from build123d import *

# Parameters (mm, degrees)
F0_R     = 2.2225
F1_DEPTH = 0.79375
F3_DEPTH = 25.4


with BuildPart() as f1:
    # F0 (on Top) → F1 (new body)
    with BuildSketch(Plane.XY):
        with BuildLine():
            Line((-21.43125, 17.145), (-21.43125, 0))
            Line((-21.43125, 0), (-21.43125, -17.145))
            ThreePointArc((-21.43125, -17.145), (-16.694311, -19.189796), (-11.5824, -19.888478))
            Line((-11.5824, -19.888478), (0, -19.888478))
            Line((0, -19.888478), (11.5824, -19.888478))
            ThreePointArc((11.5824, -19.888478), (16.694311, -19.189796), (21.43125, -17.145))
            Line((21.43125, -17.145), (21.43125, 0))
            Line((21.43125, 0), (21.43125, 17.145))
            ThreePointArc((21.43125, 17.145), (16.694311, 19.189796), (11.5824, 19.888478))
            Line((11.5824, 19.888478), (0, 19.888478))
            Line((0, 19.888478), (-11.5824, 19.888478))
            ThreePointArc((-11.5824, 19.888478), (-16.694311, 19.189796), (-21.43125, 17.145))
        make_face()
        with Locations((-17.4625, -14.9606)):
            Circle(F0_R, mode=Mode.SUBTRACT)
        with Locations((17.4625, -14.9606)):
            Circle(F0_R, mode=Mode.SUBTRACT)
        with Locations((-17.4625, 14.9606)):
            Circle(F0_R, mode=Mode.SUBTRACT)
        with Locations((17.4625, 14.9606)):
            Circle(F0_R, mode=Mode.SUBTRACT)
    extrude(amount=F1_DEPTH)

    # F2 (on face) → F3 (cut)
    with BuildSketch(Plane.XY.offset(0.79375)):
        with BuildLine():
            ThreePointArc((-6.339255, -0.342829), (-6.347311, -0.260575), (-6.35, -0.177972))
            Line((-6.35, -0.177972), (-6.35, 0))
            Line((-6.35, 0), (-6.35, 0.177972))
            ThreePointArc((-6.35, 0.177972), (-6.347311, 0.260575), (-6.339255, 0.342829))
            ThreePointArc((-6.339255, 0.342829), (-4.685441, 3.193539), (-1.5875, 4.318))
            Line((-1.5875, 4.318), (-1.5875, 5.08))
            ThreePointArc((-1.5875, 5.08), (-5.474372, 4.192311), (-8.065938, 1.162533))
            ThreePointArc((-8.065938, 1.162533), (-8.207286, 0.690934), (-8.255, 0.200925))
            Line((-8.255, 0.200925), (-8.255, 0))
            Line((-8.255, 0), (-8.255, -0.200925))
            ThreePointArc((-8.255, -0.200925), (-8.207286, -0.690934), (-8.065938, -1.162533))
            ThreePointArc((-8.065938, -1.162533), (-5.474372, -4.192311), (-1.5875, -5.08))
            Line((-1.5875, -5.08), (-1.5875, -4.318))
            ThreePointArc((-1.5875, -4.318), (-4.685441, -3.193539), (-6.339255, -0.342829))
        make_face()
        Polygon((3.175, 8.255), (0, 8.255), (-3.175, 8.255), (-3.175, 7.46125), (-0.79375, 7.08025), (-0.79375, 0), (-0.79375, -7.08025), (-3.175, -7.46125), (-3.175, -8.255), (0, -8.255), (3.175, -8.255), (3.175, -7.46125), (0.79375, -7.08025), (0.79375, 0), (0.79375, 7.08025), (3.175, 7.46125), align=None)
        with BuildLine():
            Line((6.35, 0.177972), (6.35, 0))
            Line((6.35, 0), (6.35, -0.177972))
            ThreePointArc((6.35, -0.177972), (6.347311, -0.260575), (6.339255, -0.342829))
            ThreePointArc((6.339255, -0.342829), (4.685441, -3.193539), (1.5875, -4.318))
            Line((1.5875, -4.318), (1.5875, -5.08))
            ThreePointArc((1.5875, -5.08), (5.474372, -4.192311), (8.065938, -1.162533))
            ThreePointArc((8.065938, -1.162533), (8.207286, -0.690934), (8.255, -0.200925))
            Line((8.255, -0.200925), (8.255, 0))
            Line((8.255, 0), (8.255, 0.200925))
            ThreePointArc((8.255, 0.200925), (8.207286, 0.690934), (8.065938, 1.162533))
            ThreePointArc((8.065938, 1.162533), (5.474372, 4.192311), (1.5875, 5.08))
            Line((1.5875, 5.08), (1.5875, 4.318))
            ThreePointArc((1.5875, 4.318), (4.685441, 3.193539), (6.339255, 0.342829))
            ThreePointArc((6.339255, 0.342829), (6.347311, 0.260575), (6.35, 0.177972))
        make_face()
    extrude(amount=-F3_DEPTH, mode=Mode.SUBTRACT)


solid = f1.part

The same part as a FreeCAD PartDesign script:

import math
import FreeCAD as App
import Part
import Sketcher
from FreeCAD import Vector
Q = App.Units.Quantity

doc = App.newDocument("Part")
params = doc.addObject("Spreadsheet::Sheet", "Params")
for row, (alias, value) in enumerate([
    ("sketch1_radius", "0.7499999 in"),
    ("sketch1_diameter", "0.175 in"),
    ("sketch1_height", "1.35 in"),
    ("sketch1_width", "0.912 in"),
    ("pad1_length", "0.03125 in"),
    ("sketch2_radius", "0.19 in"),
    ("sketch2_radius2", "0.25 in"),
    ("sketch2_width", "0.25 in"),
    ("sketch2_height", "0.03 in"),
    ("sketch2_height2", "0.03125 in"),
    ("pocket1_length", "1 in"),
], start=1):
    params.set(f"A{row}", alias)
    params.set(f"B{row}", "=" + value)
    params.setAlias(f"B{row}", alias)

body = doc.addObject("PartDesign::Body", "Body")

# Sketch on XY plane
sketch1 = doc.addObject("Sketcher::SketchObject", "Sketch")
body.addObject(sketch1)
sketch1.AttachmentSupport = (doc.XY_Plane, [""])
sketch1.MapMode = "FlatFace"
sketch1.addGeometry([
    Part.LineSegment(Vector(-21.4, 17.1, 0), Vector(-21.4, -17.1, 0)),  # 0
    Part.ArcOfCircle(Part.Circle(Vector(-11.6, -0.8, 0), Vector(0, 0, 1), 19), math.radians(-121), math.radians(-90)),  # 1
    Part.LineSegment(Vector(-11.6, -19.9, 0), Vector(11.6, -19.9, 0)),  # 2
    Part.ArcOfCircle(Part.Circle(Vector(11.6, -0.8, 0), Vector(0, 0, 1), 19), math.radians(-90), math.radians(-59)),  # 3
    Part.LineSegment(Vector(21.4, -17.1, 0), Vector(21.4, 17.1, 0)),  # 4
    Part.ArcOfCircle(Part.Circle(Vector(11.6, 0.8, 0), Vector(0, 0, 1), 19), math.radians(59), math.radians(90)),  # 5
    Part.LineSegment(Vector(11.6, 19.9, 0), Vector(-11.6, 19.9, 0)),  # 6
    Part.ArcOfCircle(Part.Circle(Vector(-11.6, 0.8, 0), Vector(0, 0, 1), 19), math.radians(90), math.radians(121)),  # 7
    Part.Circle(Vector(-17.5, -15, 0), Vector(0, 0, 1), 2.2),  # 8
    Part.Circle(Vector(17.5, -15, 0), Vector(0, 0, 1), 2.2),  # 9
    Part.Circle(Vector(-17.5, 15, 0), Vector(0, 0, 1), 2.2),  # 10
    Part.Circle(Vector(17.5, 15, 0), Vector(0, 0, 1), 2.2),  # 11
], False)
sketch1.addConstraint([
    Sketcher.Constraint("Coincident", 0, 2, 1, 1),
    Sketcher.Constraint("Tangent", 1, 2, 2, 1),
    Sketcher.Constraint("Tangent", 2, 2, 3, 1),
    Sketcher.Constraint("Coincident", 3, 2, 4, 1),
    Sketcher.Constraint("Coincident", 4, 2, 5, 1),
    Sketcher.Constraint("Tangent", 5, 2, 6, 1),
    Sketcher.Constraint("Tangent", 6, 2, 7, 1),
    Sketcher.Constraint("Coincident", 7, 2, 0, 1),
    Sketcher.Constraint("Vertical", 0),
    Sketcher.Constraint("Horizontal", 2),
    Sketcher.Constraint("Vertical", 4),
    Sketcher.Constraint("Horizontal", 6),
    Sketcher.Constraint("Equal", 1, 3),
    Sketcher.Constraint("Equal", 3, 5),
    Sketcher.Constraint("Equal", 5, 7),
    Sketcher.Constraint("Equal", 8, 9),
    Sketcher.Constraint("Equal", 9, 10),
    Sketcher.Constraint("Equal", 10, 11),
    Sketcher.Constraint("Symmetric", 1, 3, 5, 3, -1, 1),
    Sketcher.Constraint("Symmetric", 9, 3, 10, 3, -1, 1),
    Sketcher.Constraint("Symmetric", 8, 3, 11, 3, -1, 1),
    Sketcher.Constraint("Symmetric", 3, 2, 7, 2, -1, 1),
    Sketcher.Constraint("Symmetric", 8, 3, 9, 3, -2),
    Sketcher.Constraint("Horizontal", 0, 2, 3, 2),
    Sketcher.Constraint("Radius", 1, Q("0.7499999 in")),
    Sketcher.Constraint("Diameter", 8, Q("0.175 in")),
    Sketcher.Constraint("DistanceY", 0, 2, 0, 1, Q("1.35 in")),
    Sketcher.Constraint("DistanceX", 2, 1, 2, 2, Q("0.912 in")),
    Sketcher.Constraint("DistanceX", 8, 3, -1, 1, Q("0.6875 in")),
    Sketcher.Constraint("DistanceY", 8, 3, -1, 1, Q("0.589 in")),
    Sketcher.Constraint("DistanceX", 0, 2, -1, 1, Q("0.84375 in")),
])
sketch1.setExpression("Constraints[24]", "Params.sketch1_radius")
sketch1.setExpression("Constraints[25]", "Params.sketch1_diameter")
sketch1.setExpression("Constraints[26]", "Params.sketch1_height")
sketch1.setExpression("Constraints[27]", "Params.sketch1_width")
pad1 = doc.addObject("PartDesign::Pad", "Pad")
body.addObject(pad1)
pad1.Profile = sketch1
pad1.setExpression("Length", "Params.pad1_length")

# Sketch on XY plane
sketch2 = doc.addObject("Sketcher::SketchObject", "Sketch001")
body.addObject(sketch2)
sketch2.AttachmentSupport = (doc.XY_Plane, [""])
sketch2.MapMode = "FlatFace"
sketch2.AttachmentOffset = App.Placement(Vector(0, 0, 0.03125 * 25.4), App.Rotation())
sketch2.addGeometry([
    Part.ArcOfCircle(Part.Circle(Vector(-5.08, -0.18, 0), Vector(0, 0, 1), 1.27), math.radians(180), math.radians(187.46)),  # 0
    Part.LineSegment(Vector(-6.35, -0.18, 0), Vector(-6.35, 0.18, 0)),  # 1
    Part.ArcOfCircle(Part.Circle(Vector(-5.08, 0.18, 0), Vector(0, 0, 1), 1.27), math.radians(172.54), math.radians(180)),  # 2
    Part.ArcOfCircle(Part.Circle(Vector(-1.59, -0.51, 0), Vector(0, 0, 1), 4.83), math.radians(90), math.radians(170)),  # 3
    Part.LineSegment(Vector(-1.59, 4.32, 0), Vector(-1.59, 5.08, 0)),  # 4
    Part.ArcOfCircle(Part.Circle(Vector(-2.19, -1.24, 0), Vector(0, 0, 1), 6.35), math.radians(85), math.radians(158)),  # 5
    Part.ArcOfCircle(Part.Circle(Vector(-5.71, 0.2, 0), Vector(0, 0, 1), 2.54), math.radians(158), math.radians(180)),  # 6
    Part.LineSegment(Vector(-8.26, 0.2, 0), Vector(-8.26, -0.2, 0)),  # 7
    Part.ArcOfCircle(Part.Circle(Vector(-5.71, -0.2, 0), Vector(0, 0, 1), 2.54), math.radians(-180), math.radians(-158)),  # 8
    Part.ArcOfCircle(Part.Circle(Vector(-2.19, 1.24, 0), Vector(0, 0, 1), 6.35), math.radians(-158), math.radians(-85)),  # 9
    Part.LineSegment(Vector(-1.59, -5.08, 0), Vector(-1.59, -4.32, 0)),  # 10
    Part.ArcOfCircle(Part.Circle(Vector(-1.59, 0.51, 0), Vector(0, 0, 1), 4.83), math.radians(-170), math.radians(-90)),  # 11
    Part.LineSegment(Vector(3.17, 8.26, 0), Vector(-3.17, 8.26, 0)),  # 12
    Part.LineSegment(Vector(-3.17, 8.26, 0), Vector(-3.17, 7.46, 0)),  # 13
    Part.LineSegment(Vector(-3.17, 7.46, 0), Vector(-0.79, 7.08, 0)),  # 14
    Part.LineSegment(Vector(-0.79, 7.08, 0), Vector(-0.79, -7.08, 0)),  # 15
    Part.LineSegment(Vector(-0.79, -7.08, 0), Vector(-3.17, -7.46, 0)),  # 16
    Part.LineSegment(Vector(-3.17, -7.46, 0), Vector(-3.17, -8.26, 0)),  # 17
    Part.LineSegment(Vector(-3.17, -8.26, 0), Vector(3.17, -8.26, 0)),  # 18
    Part.LineSegment(Vector(3.17, -8.26, 0), Vector(3.17, -7.46, 0)),  # 19
    Part.LineSegment(Vector(3.17, -7.46, 0), Vector(0.79, -7.08, 0)),  # 20
    Part.LineSegment(Vector(0.79, -7.08, 0), Vector(0.79, 7.08, 0)),  # 21
    Part.LineSegment(Vector(0.79, 7.08, 0), Vector(3.17, 7.46, 0)),  # 22
    Part.LineSegment(Vector(3.17, 7.46, 0), Vector(3.17, 8.26, 0)),  # 23
    Part.LineSegment(Vector(6.35, 0.18, 0), Vector(6.35, -0.18, 0)),  # 24
    Part.ArcOfCircle(Part.Circle(Vector(5.08, -0.18, 0), Vector(0, 0, 1), 1.27), math.radians(-7.46), math.radians(0)),  # 25
    Part.ArcOfCircle(Part.Circle(Vector(1.59, 0.51, 0), Vector(0, 0, 1), 4.83), math.radians(-90), math.radians(-10)),  # 26
    Part.LineSegment(Vector(1.59, -4.32, 0), Vector(1.59, -5.08, 0)),  # 27
    Part.ArcOfCircle(Part.Circle(Vector(2.19, 1.24, 0), Vector(0, 0, 1), 6.35), math.radians(-95), math.radians(-22)),  # 28
    Part.ArcOfCircle(Part.Circle(Vector(5.71, -0.2, 0), Vector(0, 0, 1), 2.54), math.radians(-22), math.radians(0)),  # 29
    Part.LineSegment(Vector(8.26, -0.2, 0), Vector(8.26, 0.2, 0)),  # 30
    Part.ArcOfCircle(Part.Circle(Vector(5.71, 0.2, 0), Vector(0, 0, 1), 2.54), math.radians(0), math.radians(22)),  # 31
    Part.ArcOfCircle(Part.Circle(Vector(2.19, -1.24, 0), Vector(0, 0, 1), 6.35), math.radians(22), math.radians(95)),  # 32
    Part.LineSegment(Vector(1.59, 5.08, 0), Vector(1.59, 4.32, 0)),  # 33
    Part.ArcOfCircle(Part.Circle(Vector(1.59, -0.51, 0), Vector(0, 0, 1), 4.83), math.radians(10), math.radians(90)),  # 34
    Part.ArcOfCircle(Part.Circle(Vector(5.08, 0.18, 0), Vector(0, 0, 1), 1.27), math.radians(0), math.radians(7.46)),  # 35
], False)
sketch2.addConstraint([
    Sketcher.Constraint("Tangent", 0, 1, 1, 1),
    Sketcher.Constraint("Tangent", 1, 2, 2, 2),
    Sketcher.Constraint("Coincident", 2, 1, 3, 2),
    Sketcher.Constraint("Coincident", 3, 1, 4, 1),
    Sketcher.Constraint("Coincident", 4, 2, 5, 1),
    Sketcher.Constraint("Tangent", 5, 2, 6, 1),
    Sketcher.Constraint("Tangent", 6, 2, 7, 1),
    Sketcher.Constraint("Tangent", 7, 2, 8, 1),
    Sketcher.Constraint("Tangent", 8, 2, 9, 1),
    Sketcher.Constraint("Coincident", 9, 2, 10, 1),
    Sketcher.Constraint("Coincident", 10, 2, 11, 2),
    Sketcher.Constraint("Coincident", 11, 1, 0, 2),
    Sketcher.Constraint("Coincident", 12, 2, 13, 1),
    Sketcher.Constraint("Coincident", 13, 2, 14, 1),
    Sketcher.Constraint("Coincident", 14, 2, 15, 1),
    Sketcher.Constraint("Coincident", 15, 2, 16, 1),
    Sketcher.Constraint("Coincident", 16, 2, 17, 1),
    Sketcher.Constraint("Coincident", 17, 2, 18, 1),
    Sketcher.Constraint("Coincident", 18, 2, 19, 1),
    Sketcher.Constraint("Coincident", 19, 2, 20, 1),
    Sketcher.Constraint("Coincident", 20, 2, 21, 1),
    Sketcher.Constraint("Coincident", 21, 2, 22, 1),
    Sketcher.Constraint("Coincident", 22, 2, 23, 1),
    Sketcher.Constraint("Coincident", 23, 2, 12, 1),
    Sketcher.Constraint("Tangent", 24, 2, 25, 2),
    Sketcher.Constraint("Coincident", 25, 1, 26, 2),
    Sketcher.Constraint("Coincident", 26, 1, 27, 1),
    Sketcher.Constraint("Coincident", 27, 2, 28, 1),
    Sketcher.Constraint("Tangent", 28, 2, 29, 1),
    Sketcher.Constraint("Tangent", 29, 2, 30, 1),
    Sketcher.Constraint("Tangent", 30, 2, 31, 1),
    Sketcher.Constraint("Tangent", 31, 2, 32, 1),
    Sketcher.Constraint("Coincident", 32, 2, 33, 1),
    Sketcher.Constraint("Coincident", 33, 2, 34, 2),
    Sketcher.Constraint("Coincident", 34, 1, 35, 2),
    Sketcher.Constraint("Tangent", 35, 1, 24, 1),
    Sketcher.Constraint("Vertical", 1),
    Sketcher.Constraint("Vertical", 4),
    Sketcher.Constraint("Vertical", 7),
    Sketcher.Constraint("Vertical", 10),
    Sketcher.Constraint("Horizontal", 12),
    Sketcher.Constraint("Vertical", 13),
    Sketcher.Constraint("Vertical", 15),
    Sketcher.Constraint("Vertical", 17),
    Sketcher.Constraint("Horizontal", 18),
    Sketcher.Constraint("Vertical", 19),
    Sketcher.Constraint("Vertical", 21),
    Sketcher.Constraint("Vertical", 23),
    Sketcher.Constraint("Vertical", 24),
    Sketcher.Constraint("Vertical", 27),
    Sketcher.Constraint("Vertical", 30),
    Sketcher.Constraint("Vertical", 33),
    Sketcher.Constraint("Equal", 0, 2),
    Sketcher.Constraint("Equal", 6, 8),
    Sketcher.Constraint("Equal", 5, 9),
    Sketcher.Constraint("Equal", 3, 11),
    Sketcher.Constraint("Equal", 2, 25),
    Sketcher.Constraint("Equal", 11, 26),
    Sketcher.Constraint("Equal", 9, 28),
    Sketcher.Constraint("Equal", 8, 29),
    Sketcher.Constraint("Equal", 29, 31),
    Sketcher.Constraint("Equal", 28, 32),
    Sketcher.Constraint("Equal", 26, 34),
    Sketcher.Constraint("Equal", 25, 35),
    Sketcher.Constraint("Symmetric", 2, 3, 25, 3, -1, 1),
    Sketcher.Constraint("Symmetric", 3, 3, 26, 3, -1, 1),
    Sketcher.Constraint("Symmetric", 5, 3, 28, 3, -1, 1),
    Sketcher.Constraint("Symmetric", 8, 3, 31, 3, -1, 1),
    Sketcher.Constraint("Symmetric", 11, 3, 34, 3, -1, 1),
    Sketcher.Constraint("Symmetric", 12, 2, 18, 2, -1, 1),
    Sketcher.Constraint("Symmetric", 14, 2, 20, 2, -1, 1),
    Sketcher.Constraint("Symmetric", 16, 2, 22, 2, -1, 1),
    Sketcher.Constraint("Symmetric", 9, 2, 32, 2, -1, 1),
    Sketcher.Constraint("Symmetric", 11, 3, 26, 3, -2),
    Sketcher.Constraint("Symmetric", 9, 3, 28, 3, -2),
    Sketcher.Constraint("Symmetric", 16, 2, 19, 2, -2),
    Sketcher.Constraint("Parallel", 14, 20),
    Sketcher.Constraint("Parallel", 16, 22),
    Sketcher.Constraint("Horizontal", 0, 3, 25, 3),
    Sketcher.Constraint("Horizontal", 2, 3, 35, 3),
    Sketcher.Constraint("Horizontal", 15, 2, 20, 2),
    Sketcher.Constraint("Horizontal", 9, 2, 27, 2),
    Sketcher.Constraint("Horizontal", 4, 2, 32, 2),
    Sketcher.Constraint("Radius", 3, Q("0.19 in")),
    Sketcher.Constraint("Radius", 5, Q("0.25 in")),
    Sketcher.Constraint("DistanceX", 12, 2, 12, 1, Q("0.25 in")),
    Sketcher.Constraint("DistanceY", 4, 1, 4, 2, Q("0.03 in")),
    Sketcher.Constraint("DistanceY", -1, 1, 4, 2, Q("0.2 in")),
    Sketcher.Constraint("DistanceY", 13, 2, 13, 1, Q("0.03125 in")),
    Sketcher.Constraint("DistanceX", 0, 1, -1, 1, Q("0.25 in")),
    Sketcher.Constraint("DistanceY", 15, 2, 15, 1, Q("0.5575 in")),
    Sketcher.Constraint("DistanceX", 3, 1, -1, 1, Q("0.0625 in")),
    Sketcher.Constraint("DistanceX", 6, 2, -1, 1, Q("0.325 in")),
    Sketcher.Constraint("DistanceY", -1, 1, 12, 2, Q("0.325 in")),
    Sketcher.Constraint("DistanceX", 14, 2, -1, 1, Q("0.03125 in")),
    Sketcher.Constraint("DistanceX", 6, 3, 2, 3, Q("0.0249999 in")),
    Sketcher.Constraint("Radius", 0, 1.270013),
    Sketcher.Constraint("DistanceY", 7, 2, 7, 1, 0.40185),
    Sketcher.Constraint("DistanceY", 0, 1, 2, 1, 0.520801),
    Sketcher.Constraint("DistanceX", 3, 3, 15, 2, 0.795098),
])
sketch2.setExpression("Constraints[83]", "Params.sketch2_radius")
sketch2.setExpression("Constraints[84]", "Params.sketch2_radius2")
sketch2.setExpression("Constraints[85]", "Params.sketch2_width")
sketch2.setExpression("Constraints[86]", "Params.sketch2_height")
sketch2.setExpression("Constraints[88]", "Params.sketch2_height2")
pocket1 = doc.addObject("PartDesign::Pocket", "Pocket")
body.addObject(pocket1)
pocket1.Profile = sketch2
pocket1.setExpression("Length", "Params.pocket1_length")

doc.recompute()
